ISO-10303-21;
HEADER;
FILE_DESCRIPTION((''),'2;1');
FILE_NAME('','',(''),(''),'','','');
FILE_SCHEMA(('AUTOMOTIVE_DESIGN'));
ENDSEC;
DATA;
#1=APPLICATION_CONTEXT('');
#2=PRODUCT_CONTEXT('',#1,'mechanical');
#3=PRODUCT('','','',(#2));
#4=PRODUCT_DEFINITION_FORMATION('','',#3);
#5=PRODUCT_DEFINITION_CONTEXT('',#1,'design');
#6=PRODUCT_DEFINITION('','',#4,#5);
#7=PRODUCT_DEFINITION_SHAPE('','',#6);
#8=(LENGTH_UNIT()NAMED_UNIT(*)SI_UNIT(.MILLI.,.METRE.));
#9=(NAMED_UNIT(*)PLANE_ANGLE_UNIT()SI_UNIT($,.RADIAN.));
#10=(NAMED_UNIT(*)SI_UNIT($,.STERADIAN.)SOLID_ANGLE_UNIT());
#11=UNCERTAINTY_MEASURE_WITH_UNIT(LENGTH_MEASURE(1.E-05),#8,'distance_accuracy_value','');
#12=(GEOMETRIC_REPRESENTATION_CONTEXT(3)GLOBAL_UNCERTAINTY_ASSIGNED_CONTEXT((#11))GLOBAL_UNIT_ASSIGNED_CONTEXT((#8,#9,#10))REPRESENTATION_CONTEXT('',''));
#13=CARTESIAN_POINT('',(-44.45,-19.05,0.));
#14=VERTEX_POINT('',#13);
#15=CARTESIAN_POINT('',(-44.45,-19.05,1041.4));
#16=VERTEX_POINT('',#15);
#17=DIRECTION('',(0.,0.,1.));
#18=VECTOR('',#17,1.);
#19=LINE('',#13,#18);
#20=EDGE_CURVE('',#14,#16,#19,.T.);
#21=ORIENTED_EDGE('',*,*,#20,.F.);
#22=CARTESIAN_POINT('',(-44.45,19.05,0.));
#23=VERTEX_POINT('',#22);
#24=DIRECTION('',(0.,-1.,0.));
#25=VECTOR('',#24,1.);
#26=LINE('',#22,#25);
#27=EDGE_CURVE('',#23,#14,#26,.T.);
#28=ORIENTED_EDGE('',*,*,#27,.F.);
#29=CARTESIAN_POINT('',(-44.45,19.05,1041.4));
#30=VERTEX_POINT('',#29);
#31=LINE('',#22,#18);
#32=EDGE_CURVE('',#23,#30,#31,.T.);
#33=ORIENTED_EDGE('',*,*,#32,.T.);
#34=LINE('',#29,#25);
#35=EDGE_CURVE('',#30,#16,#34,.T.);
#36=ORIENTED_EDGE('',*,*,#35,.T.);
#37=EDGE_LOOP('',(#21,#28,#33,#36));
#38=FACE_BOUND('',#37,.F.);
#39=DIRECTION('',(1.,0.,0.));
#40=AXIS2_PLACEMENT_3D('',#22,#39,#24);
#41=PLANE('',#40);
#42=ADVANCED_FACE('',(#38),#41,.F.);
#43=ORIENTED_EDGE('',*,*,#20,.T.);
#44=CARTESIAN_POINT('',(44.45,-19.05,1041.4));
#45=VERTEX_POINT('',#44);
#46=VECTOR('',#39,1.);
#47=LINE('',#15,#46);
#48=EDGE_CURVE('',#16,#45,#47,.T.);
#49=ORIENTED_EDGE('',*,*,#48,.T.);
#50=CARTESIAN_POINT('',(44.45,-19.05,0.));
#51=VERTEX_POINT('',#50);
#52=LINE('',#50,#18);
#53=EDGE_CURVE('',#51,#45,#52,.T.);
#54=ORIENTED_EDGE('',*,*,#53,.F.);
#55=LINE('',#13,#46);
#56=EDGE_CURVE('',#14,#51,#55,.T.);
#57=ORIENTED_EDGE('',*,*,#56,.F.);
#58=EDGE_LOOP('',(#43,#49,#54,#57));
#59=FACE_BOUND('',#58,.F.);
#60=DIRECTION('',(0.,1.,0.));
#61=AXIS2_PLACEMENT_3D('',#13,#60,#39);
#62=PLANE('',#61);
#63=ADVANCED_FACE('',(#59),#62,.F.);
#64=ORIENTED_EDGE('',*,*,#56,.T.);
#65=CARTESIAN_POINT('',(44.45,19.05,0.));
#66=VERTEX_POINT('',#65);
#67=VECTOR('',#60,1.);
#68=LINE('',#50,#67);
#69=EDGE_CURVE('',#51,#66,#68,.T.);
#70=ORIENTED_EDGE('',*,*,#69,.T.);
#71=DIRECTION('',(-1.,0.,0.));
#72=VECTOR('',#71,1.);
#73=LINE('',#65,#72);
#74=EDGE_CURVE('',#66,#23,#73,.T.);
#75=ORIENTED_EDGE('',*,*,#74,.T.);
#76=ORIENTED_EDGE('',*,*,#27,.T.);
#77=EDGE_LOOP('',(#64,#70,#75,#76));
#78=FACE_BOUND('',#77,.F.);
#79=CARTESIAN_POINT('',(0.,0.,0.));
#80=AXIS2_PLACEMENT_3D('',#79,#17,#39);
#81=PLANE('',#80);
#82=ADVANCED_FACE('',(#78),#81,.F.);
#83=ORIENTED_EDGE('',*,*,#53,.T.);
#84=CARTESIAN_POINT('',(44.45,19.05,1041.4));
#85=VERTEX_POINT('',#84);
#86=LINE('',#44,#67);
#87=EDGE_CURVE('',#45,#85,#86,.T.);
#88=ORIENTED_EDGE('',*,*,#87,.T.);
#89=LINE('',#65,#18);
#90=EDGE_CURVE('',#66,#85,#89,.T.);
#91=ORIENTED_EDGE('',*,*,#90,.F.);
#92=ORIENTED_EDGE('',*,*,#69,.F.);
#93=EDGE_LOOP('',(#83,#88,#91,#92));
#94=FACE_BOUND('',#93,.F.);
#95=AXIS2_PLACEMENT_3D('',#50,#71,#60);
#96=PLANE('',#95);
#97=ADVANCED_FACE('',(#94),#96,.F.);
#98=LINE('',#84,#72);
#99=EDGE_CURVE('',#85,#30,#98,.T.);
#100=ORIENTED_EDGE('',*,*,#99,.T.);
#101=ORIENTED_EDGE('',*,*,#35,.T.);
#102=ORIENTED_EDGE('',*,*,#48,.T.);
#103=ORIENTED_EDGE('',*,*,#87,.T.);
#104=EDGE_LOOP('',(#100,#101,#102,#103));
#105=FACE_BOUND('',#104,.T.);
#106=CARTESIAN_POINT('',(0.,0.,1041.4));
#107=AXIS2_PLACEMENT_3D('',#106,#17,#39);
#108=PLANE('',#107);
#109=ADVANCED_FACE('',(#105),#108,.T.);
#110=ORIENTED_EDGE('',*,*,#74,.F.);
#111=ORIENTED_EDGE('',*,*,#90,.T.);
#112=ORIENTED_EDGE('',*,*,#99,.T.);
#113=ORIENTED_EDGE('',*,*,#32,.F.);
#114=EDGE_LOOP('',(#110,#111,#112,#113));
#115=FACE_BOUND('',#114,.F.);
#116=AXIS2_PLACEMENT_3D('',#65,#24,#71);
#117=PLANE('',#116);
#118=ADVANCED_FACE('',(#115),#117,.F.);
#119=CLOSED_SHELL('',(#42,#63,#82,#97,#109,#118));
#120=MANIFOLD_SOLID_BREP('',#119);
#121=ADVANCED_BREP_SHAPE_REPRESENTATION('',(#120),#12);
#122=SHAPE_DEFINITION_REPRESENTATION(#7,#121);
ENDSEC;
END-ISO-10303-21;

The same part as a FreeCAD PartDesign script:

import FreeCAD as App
import Part
import Sketcher
Q = App.Units.Quantity


def add_polygon(sketch, points):
    """Adds a closed chain of lines whose ends are joined by coincident constraints."""
    first, n = sketch.GeometryCount, len(points)
    for a, b in zip(points, points[1:] + points[:1]):
        sketch.addGeometry(Part.LineSegment(App.Vector(*a, 0), App.Vector(*b, 0)), False)
    for i in range(n):
        sketch.addConstraint(Sketcher.Constraint("Coincident", first + i, 2, first + (i + 1) % n, 1))

doc = App.newDocument("Part")
body = doc.addObject("PartDesign::Body", "Body")

# Sketch on XY plane
sketch1 = doc.addObject("Sketcher::SketchObject", "Sketch")
body.addObject(sketch1)
sketch1.AttachmentSupport = (doc.XY_Plane, [""])
sketch1.MapMode = "FlatFace"
add_polygon(sketch1, [(-44, 19), (-44, -19), (44, -19), (44, 19)])  # lines 0-3
sketch1.addConstraint(Sketcher.Constraint("Vertical", 0))
sketch1.addConstraint(Sketcher.Constraint("Horizontal", 1))
sketch1.addConstraint(Sketcher.Constraint("Vertical", 2))
sketch1.addConstraint(Sketcher.Constraint("Horizontal", 3))
sketch1.addConstraint(Sketcher.Constraint("Symmetric", 0, 2, 2, 2, -1, 1))
sketch1.addConstraint(Sketcher.Constraint("DistanceX", 1, 1, 1, 2, Q("3.5 in")))
sketch1.addConstraint(Sketcher.Constraint("DistanceY", 0, 2, 0, 1, Q("1.5 in")))
pad1 = doc.addObject("PartDesign::Pad", "Pad")
body.addObject(pad1)
pad1.Profile = sketch1
pad1.Length = Q("41 in")

doc.recompute()
